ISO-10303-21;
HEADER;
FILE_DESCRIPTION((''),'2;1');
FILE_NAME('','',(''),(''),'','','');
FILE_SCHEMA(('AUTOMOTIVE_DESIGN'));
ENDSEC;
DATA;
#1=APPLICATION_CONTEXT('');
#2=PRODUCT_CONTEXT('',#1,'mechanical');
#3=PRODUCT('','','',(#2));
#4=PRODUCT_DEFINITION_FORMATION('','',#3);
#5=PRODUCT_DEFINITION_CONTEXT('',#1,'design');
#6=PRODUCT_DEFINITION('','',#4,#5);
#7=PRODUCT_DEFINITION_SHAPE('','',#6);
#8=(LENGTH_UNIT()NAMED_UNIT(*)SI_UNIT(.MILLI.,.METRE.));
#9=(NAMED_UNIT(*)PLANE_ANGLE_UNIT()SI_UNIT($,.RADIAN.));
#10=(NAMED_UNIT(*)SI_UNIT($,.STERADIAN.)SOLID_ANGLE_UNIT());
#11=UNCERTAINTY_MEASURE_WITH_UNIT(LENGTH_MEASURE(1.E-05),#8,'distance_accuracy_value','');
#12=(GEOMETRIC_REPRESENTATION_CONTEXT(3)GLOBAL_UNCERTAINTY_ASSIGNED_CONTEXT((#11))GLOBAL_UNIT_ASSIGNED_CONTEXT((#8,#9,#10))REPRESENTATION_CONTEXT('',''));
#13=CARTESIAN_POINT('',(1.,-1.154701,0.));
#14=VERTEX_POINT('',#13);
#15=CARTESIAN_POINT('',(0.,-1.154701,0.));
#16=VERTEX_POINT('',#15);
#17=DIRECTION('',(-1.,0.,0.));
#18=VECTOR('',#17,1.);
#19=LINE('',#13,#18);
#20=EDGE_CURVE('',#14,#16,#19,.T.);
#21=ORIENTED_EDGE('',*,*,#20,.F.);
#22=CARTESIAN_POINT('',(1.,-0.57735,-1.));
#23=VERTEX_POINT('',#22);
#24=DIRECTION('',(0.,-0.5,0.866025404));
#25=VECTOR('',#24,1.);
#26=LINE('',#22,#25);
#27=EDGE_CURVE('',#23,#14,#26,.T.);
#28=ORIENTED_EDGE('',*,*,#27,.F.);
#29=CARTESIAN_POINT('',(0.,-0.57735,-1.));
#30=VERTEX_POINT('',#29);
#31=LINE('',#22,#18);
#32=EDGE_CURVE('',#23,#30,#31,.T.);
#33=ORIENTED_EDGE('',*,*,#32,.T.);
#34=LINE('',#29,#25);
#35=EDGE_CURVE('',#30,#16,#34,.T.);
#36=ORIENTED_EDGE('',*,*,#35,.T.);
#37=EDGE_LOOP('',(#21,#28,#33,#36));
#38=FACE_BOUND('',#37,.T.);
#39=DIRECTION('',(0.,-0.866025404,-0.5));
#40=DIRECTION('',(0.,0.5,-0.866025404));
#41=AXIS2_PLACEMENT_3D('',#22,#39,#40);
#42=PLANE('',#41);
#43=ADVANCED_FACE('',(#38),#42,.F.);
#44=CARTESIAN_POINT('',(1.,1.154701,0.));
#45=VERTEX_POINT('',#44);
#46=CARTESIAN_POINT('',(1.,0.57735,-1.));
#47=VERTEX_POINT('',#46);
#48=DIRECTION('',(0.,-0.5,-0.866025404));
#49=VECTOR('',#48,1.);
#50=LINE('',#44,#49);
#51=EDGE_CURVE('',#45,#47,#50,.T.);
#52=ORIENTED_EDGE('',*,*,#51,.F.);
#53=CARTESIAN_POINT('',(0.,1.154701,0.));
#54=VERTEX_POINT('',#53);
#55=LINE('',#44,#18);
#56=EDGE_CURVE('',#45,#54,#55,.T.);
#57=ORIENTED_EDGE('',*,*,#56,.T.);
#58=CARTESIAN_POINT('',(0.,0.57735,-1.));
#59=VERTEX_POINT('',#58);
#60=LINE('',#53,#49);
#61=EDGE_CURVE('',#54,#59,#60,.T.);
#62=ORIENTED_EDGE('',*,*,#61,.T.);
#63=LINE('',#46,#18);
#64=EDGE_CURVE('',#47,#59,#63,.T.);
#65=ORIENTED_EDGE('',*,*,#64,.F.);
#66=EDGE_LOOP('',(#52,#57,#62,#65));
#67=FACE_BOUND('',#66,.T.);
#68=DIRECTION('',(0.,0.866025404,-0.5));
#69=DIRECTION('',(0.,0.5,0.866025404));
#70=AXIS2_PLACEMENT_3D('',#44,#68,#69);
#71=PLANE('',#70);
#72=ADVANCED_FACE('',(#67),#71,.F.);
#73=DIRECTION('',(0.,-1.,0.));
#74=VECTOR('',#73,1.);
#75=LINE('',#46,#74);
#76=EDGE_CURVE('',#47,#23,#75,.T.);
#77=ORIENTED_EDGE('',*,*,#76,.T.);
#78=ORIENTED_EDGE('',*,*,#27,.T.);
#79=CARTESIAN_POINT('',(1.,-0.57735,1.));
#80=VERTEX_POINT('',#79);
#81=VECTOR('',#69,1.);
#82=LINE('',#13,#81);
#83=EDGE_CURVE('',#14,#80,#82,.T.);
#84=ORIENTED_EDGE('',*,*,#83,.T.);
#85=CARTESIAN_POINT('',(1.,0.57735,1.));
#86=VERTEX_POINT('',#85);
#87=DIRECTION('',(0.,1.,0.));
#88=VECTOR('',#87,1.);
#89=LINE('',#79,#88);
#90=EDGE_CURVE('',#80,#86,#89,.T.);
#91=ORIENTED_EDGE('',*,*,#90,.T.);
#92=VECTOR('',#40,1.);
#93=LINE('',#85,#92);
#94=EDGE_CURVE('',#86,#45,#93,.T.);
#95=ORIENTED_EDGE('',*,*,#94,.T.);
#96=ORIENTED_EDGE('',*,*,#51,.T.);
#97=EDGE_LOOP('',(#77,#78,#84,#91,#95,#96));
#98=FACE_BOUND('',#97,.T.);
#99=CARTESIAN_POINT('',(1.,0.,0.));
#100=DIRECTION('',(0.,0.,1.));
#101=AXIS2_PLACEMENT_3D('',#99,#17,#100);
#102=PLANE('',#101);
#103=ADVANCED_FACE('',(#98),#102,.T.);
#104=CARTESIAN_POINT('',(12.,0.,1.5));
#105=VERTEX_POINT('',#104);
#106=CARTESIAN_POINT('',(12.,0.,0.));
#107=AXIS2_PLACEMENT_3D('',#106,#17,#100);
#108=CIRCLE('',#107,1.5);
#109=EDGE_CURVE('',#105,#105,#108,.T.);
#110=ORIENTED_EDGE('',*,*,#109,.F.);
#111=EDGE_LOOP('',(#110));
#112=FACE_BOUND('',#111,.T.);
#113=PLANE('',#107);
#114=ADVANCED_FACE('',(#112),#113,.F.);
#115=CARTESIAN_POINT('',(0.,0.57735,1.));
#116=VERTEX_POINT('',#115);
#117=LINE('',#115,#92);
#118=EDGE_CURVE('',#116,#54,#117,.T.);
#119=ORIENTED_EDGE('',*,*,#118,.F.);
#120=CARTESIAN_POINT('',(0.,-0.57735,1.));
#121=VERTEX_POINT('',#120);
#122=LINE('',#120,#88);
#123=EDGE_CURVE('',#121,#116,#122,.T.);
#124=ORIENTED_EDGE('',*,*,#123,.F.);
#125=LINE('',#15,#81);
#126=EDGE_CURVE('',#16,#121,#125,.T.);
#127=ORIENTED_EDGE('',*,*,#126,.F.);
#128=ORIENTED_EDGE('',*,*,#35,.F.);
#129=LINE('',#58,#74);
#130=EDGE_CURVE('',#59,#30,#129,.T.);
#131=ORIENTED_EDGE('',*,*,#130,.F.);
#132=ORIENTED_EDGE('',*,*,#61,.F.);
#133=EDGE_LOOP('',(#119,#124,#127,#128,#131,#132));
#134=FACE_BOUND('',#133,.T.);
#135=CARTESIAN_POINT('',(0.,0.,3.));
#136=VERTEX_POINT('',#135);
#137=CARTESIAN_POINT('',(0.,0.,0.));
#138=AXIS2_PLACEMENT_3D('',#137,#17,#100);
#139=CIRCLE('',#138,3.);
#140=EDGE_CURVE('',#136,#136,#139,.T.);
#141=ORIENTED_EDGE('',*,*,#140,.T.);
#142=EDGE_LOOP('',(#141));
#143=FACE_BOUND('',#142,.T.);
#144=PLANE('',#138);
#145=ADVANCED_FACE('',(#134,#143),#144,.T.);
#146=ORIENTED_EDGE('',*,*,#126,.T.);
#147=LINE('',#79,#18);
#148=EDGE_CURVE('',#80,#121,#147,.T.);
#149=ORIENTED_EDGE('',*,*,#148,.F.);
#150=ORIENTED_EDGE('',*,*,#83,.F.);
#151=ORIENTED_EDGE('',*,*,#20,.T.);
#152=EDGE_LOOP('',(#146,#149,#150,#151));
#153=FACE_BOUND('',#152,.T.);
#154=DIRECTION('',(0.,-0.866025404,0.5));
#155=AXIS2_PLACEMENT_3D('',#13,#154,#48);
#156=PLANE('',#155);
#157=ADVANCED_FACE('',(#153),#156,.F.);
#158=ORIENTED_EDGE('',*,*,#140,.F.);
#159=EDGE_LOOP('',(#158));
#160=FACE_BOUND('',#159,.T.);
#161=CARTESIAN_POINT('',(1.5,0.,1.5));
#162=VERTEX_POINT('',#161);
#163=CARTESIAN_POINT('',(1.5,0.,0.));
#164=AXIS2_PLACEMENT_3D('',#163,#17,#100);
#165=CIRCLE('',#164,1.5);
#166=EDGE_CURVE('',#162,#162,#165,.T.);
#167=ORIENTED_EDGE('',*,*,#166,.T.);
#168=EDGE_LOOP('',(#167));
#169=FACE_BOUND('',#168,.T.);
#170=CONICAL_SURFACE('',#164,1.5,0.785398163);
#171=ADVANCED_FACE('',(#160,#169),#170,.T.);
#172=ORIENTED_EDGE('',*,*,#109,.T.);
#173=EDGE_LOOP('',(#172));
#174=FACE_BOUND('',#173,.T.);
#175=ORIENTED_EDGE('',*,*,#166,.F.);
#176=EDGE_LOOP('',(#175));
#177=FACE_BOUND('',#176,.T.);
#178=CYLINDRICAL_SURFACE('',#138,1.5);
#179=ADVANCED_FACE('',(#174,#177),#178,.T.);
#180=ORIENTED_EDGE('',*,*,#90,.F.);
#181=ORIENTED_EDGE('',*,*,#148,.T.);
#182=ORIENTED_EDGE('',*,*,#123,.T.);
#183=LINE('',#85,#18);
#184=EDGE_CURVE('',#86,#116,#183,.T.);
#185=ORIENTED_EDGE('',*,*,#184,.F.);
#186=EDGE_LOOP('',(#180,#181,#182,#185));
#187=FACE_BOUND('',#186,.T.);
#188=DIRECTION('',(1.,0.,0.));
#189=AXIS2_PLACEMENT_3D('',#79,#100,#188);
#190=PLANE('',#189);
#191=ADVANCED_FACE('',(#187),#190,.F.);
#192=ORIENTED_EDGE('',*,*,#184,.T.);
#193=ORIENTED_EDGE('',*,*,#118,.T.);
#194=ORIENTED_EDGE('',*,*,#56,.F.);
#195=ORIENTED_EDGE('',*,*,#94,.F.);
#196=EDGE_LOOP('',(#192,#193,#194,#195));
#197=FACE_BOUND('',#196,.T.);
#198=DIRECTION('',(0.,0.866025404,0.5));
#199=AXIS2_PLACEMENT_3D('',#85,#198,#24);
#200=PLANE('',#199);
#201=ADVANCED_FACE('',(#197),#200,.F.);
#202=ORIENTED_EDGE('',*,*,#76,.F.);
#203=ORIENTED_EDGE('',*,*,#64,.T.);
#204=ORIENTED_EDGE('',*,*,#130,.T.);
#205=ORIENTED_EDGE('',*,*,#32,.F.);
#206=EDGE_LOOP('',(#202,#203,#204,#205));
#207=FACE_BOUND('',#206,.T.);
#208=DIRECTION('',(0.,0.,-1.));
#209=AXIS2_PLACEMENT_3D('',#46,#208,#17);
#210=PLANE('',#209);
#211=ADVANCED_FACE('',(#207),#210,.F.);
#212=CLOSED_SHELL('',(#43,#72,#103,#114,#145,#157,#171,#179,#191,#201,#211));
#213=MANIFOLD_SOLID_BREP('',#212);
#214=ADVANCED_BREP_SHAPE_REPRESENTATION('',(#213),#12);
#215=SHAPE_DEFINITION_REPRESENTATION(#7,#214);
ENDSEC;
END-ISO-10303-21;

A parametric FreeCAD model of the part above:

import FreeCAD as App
import Part
import Sketcher
from FreeCAD import Vector
Q = App.Units.Quantity


def add_polygon(sketch, points):
    """Adds a closed chain of lines whose ends are joined by coincident constraints."""
    first, n = sketch.GeometryCount, len(points)
    for a, b in zip(points, points[1:] + points[:1]):
        sketch.addGeometry(Part.LineSegment(App.Vector(*a, 0), App.Vector(*b, 0)), False)
    for i in range(n):
        sketch.addConstraint(Sketcher.Constraint("Coincident", first + i, 2, first + (i + 1) % n, 1))

doc = App.newDocument("Part")
body = doc.addObject("PartDesign::Body", "Body")

# Sketch on XY plane
sketch1 = body.newObject("Sketcher::SketchObject", "Sketch")
sketch1.AttachmentSupport = (doc.getObject("XY_Plane"), [""])
sketch1.MapMode = "FlatFace"
add_polygon(sketch1, [(0, 3), (0, 0), (12, 0), (12, 1.5), (1.5, 1.5)])  # lines 0-4
sketch1.addConstraint([
    Sketcher.Constraint("Vertical", 0),
    Sketcher.Constraint("Horizontal", 1),
    Sketcher.Constraint("Vertical", 2),
    Sketcher.Constraint("Horizontal", 3),
    Sketcher.Constraint("Coincident", 0, 2, -1, 1),
    Sketcher.Constraint("DistanceX", 1, 1, 1, 2, Q("12 mm")),
    Sketcher.Constraint("DistanceY", 0, 2, 0, 1, Q("3 mm")),
    Sketcher.Constraint("Angle", 4, Q("135 deg")),
    Sketcher.Constraint("DistanceX", 3, 2, 3, 1, Q("10.5 mm")),
])
revolution = body.newObject("PartDesign::Revolution", "Revolution")
revolution.Profile = sketch1
revolution.ReferenceAxis = (sketch1, ["H_Axis"])
revolution.Angle = 360

# Sketch on YZ plane
sketch2 = body.newObject("Sketcher::SketchObject", "Sketch001")
sketch2.AttachmentSupport = (doc.getObject("YZ_Plane"), [""])
sketch2.MapMode = "FlatFace"
add_polygon(sketch2, [(1.2, 0), (0.6, -1), (-0.6, -1), (-1.2, 0), (-0.6, 1), (0.6, 1)])  # lines 0-5
sketch2.addConstraint([
    Sketcher.Constraint("Horizontal", 1),
    Sketcher.Constraint("Horizontal", 4),
    Sketcher.Constraint("Symmetric", 0, 2, 3, 2, -1, 1),
    Sketcher.Constraint("Symmetric", 2, 2, 5, 2, -1, 1),
    Sketcher.Constraint("PointOnObject", 2, 2, -1),
    Sketcher.Constraint("Parallel", 2, 5),
    Sketcher.Constraint("Vertical", 1, 2, 3, 2),
    Sketcher.Constraint("Angle", 0, Q("-120 deg")),
    Sketcher.Constraint("DistanceY", 0, 2, -1, 1, Q("1 mm")),
    Sketcher.Constraint("DistanceX", 1, 2, 1, 1, Q("1.154701 mm")),
])
pocket1 = body.newObject("PartDesign::Pocket", "Pocket")
pocket1.Profile = sketch2
pocket1.Length = 1
pocket1.Reversed = True

doc.recompute()
